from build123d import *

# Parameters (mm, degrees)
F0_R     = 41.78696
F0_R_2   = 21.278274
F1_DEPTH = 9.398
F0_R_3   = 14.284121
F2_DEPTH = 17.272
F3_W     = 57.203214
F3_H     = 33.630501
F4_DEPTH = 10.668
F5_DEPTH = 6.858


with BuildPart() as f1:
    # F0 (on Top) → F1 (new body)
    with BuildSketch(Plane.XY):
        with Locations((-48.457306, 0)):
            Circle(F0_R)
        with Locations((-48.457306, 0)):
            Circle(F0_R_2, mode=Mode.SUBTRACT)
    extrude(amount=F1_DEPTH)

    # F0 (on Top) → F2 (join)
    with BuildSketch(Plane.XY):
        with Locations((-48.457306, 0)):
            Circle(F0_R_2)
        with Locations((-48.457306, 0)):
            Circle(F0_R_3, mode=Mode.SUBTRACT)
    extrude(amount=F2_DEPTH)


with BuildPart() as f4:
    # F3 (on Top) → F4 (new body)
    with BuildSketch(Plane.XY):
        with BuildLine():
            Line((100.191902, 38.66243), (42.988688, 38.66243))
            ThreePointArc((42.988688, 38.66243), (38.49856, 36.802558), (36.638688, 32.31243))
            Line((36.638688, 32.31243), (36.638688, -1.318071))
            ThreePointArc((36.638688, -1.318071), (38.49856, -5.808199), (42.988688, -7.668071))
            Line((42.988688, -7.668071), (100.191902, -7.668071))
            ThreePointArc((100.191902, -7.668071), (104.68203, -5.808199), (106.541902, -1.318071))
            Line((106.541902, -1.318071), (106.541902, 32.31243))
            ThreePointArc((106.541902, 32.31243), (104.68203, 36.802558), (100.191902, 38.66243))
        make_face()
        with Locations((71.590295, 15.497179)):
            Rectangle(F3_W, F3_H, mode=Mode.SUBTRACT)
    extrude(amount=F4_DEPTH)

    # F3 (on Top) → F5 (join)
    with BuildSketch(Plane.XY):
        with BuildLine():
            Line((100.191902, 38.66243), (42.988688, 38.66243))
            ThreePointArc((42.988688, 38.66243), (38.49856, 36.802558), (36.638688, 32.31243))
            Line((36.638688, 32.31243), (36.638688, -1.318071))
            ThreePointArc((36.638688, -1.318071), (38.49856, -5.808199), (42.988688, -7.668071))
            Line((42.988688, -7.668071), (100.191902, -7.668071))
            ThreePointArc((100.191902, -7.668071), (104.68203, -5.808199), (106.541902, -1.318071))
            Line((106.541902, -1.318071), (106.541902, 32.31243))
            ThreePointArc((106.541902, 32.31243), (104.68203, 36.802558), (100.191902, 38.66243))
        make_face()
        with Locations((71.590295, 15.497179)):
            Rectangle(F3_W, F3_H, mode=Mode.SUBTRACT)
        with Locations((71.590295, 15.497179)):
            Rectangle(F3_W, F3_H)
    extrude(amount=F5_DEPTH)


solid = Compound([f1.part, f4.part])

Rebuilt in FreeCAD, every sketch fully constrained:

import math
import FreeCAD as App
import Part
import Sketcher
from FreeCAD import Vector
Q = App.Units.Quantity

doc = App.newDocument("Part")
body = doc.addObject("PartDesign::Body", "Body")

# Sketch on XY plane
sketch1 = doc.addObject("Sketcher::SketchObject", "Sketch")
body.addObject(sketch1)
sketch1.AttachmentSupport = (doc.XY_Plane, [""])
sketch1.MapMode = "FlatFace"
sketch1.addGeometry([
    Part.Circle(Vector(-48, 0, 0), Vector(0, 0, 1), 42),
    Part.Circle(Vector(-48, 0, 0), Vector(0, 0, 1), 21),
], False)
sketch1.addConstraint([
    Sketcher.Constraint("Coincident", 1, 3, 0, 3),
    Sketcher.Constraint("PointOnObject", 0, 3, -1),
    Sketcher.Constraint("Diameter", 0, Q("83.57392 mm")),
    Sketcher.Constraint("Diameter", 1, Q("42.556548 mm")),
    Sketcher.Constraint("DistanceX", 0, 3, -1, 1, Q("48.457306 mm")),
])
pad1 = doc.addObject("PartDesign::Pad", "Pad")
body.addObject(pad1)
pad1.Profile = sketch1
pad1.Length = Q("0.37 in")

# Sketch on XY plane
sketch2 = doc.addObject("Sketcher::SketchObject", "Sketch001")
body.addObject(sketch2)
sketch2.AttachmentSupport = (doc.XY_Plane, [""])
sketch2.MapMode = "FlatFace"
sketch2.addGeometry([
    Part.Circle(Vector(-48, 0, 0), Vector(0, 0, 1), 21),
    Part.Circle(Vector(-48, 0, 0), Vector(0, 0, 1), 14),
], False)
sketch2.addConstraint([
    Sketcher.Constraint("Coincident", 1, 3, 0, 3),
    Sketcher.Constraint("PointOnObject", 0, 3, -1),
    Sketcher.Constraint("Diameter", 0, Q("42.556548 mm")),
    Sketcher.Constraint("Diameter", 1, Q("28.568242 mm")),
    Sketcher.Constraint("DistanceX", 0, 3, -1, 1, Q("48.457306 mm")),
])
pad2 = doc.addObject("PartDesign::Pad", "Pad001")
body.addObject(pad2)
pad2.Profile = sketch2
pad2.Length = Q("0.68 in")
body2 = doc.addObject("PartDesign::Body", "Body001")

# Sketch on XY plane
sketch3 = doc.addObject("Sketcher::SketchObject", "Sketch002")
body2.addObject(sketch3)
sketch3.AttachmentSupport = (doc.getObject("XY_Plane001"), [""])
sketch3.MapMode = "FlatFace"
sketch3.addGeometry([
    Part.LineSegment(Vector(100, 39, 0), Vector(43, 39, 0)),  # 0
    Part.ArcOfCircle(Part.Circle(Vector(43, 32, 0), Vector(0, 0, 1), 6), math.radians(90), math.radians(180)),  # 1
    Part.LineSegment(Vector(37, 32, 0), Vector(37, -1, 0)),  # 2
    Part.ArcOfCircle(Part.Circle(Vector(43, -1, 0), Vector(0, 0, 1), 6), math.radians(-180), math.radians(-90)),  # 3
    Part.LineSegment(Vector(43, -8, 0), Vector(100, -8, 0)),  # 4
    Part.ArcOfCircle(Part.Circle(Vector(100, -1, 0), Vector(0, 0, 1), 6), math.radians(-90), math.radians(0)),  # 5
    Part.LineSegment(Vector(107, -1, 0), Vector(107, 32, 0)),  # 6
    Part.ArcOfCircle(Part.Circle(Vector(100, 32, 0), Vector(0, 0, 1), 6), math.radians(0), math.radians(90)),  # 7
    Part.LineSegment(Vector(100, -1, 0), Vector(43, -1, 0)),  # 8
    Part.LineSegment(Vector(43, -1, 0), Vector(43, 32, 0)),  # 9
    Part.LineSegment(Vector(43, 32, 0), Vector(100, 32, 0)),  # 10
    Part.LineSegment(Vector(100, 32, 0), Vector(100, -1, 0)),  # 11
], False)
sketch3.addConstraint([
    Sketcher.Constraint("Tangent", 0, 2, 1, 1),
    Sketcher.Constraint("Tangent", 1, 2, 2, 1),
    Sketcher.Constraint("Tangent", 2, 2, 3, 1),
    Sketcher.Constraint("Tangent", 3, 2, 4, 1),
    Sketcher.Constraint("Tangent", 4, 2, 5, 1),
    Sketcher.Constraint("Tangent", 5, 2, 6, 1),
    Sketcher.Constraint("Tangent", 6, 2, 7, 1),
    Sketcher.Constraint("Tangent", 7, 2, 0, 1),
    Sketcher.Constraint("Coincident", 8, 2, 9, 1),
    Sketcher.Constraint("Coincident", 9, 2, 10, 1),
    Sketcher.Constraint("Coincident", 10, 2, 11, 1),
    Sketcher.Constraint("Coincident", 11, 2, 8, 1),
    Sketcher.Constraint("Horizontal", 0),
    Sketcher.Constraint("Vertical", 2),
    Sketcher.Constraint("Horizontal", 4),
    Sketcher.Constraint("Vertical", 6),
    Sketcher.Constraint("Horizontal", 8),
    Sketcher.Constraint("Vertical", 9),
    Sketcher.Constraint("Horizontal", 10),
    Sketcher.Constraint("Vertical", 11),
    Sketcher.Constraint("Coincident", 8, 2, 3, 3),
    Sketcher.Constraint("Coincident", 9, 2, 1, 3),
    Sketcher.Constraint("Coincident", 10, 2, 7, 3),
    Sketcher.Constraint("Equal", 3, 5),
    Sketcher.Constraint("Radius", 1, Q("0.25 in")),
    Sketcher.Constraint("DistanceY", 2, 2, 2, 1, Q("33.630501 mm")),
    Sketcher.Constraint("DistanceX", -1, 1, 5, 3, Q("100.191902 mm")),
    Sketcher.Constraint("DistanceX", 0, 2, 0, 1, Q("57.203214 mm")),
    Sketcher.Constraint("DistanceY", -1, 1, 1, 3, Q("32.31243 mm")),
])
pad3 = doc.addObject("PartDesign::Pad", "Pad002")
body2.addObject(pad3)
pad3.Profile = sketch3
pad3.Length = Q("0.42 in")

# Sketch on XY plane
sketch4 = doc.addObject("Sketcher::SketchObject", "Sketch003")
body2.addObject(sketch4)
sketch4.AttachmentSupport = (doc.getObject("XY_Plane001"), [""])
sketch4.MapMode = "FlatFace"
sketch4.addGeometry([
    Part.LineSegment(Vector(100, 39, 0), Vector(43, 39, 0)),  # 0
    Part.ArcOfCircle(Part.Circle(Vector(43, 32, 0), Vector(0, 0, 1), 6), math.radians(90), math.radians(180)),  # 1
    Part.LineSegment(Vector(37, 32, 0), Vector(37, -1, 0)),  # 2
    Part.ArcOfCircle(Part.Circle(Vector(43, -1, 0), Vector(0, 0, 1), 6), math.radians(-180), math.radians(-90)),  # 3
    Part.LineSegment(Vector(43, -8, 0), Vector(100, -8, 0)),  # 4
    Part.ArcOfCircle(Part.Circle(Vector(100, -1, 0), Vector(0, 0, 1), 6), math.radians(-90), math.radians(0)),  # 5
    Part.LineSegment(Vector(107, -1, 0), Vector(107, 32, 0)),  # 6
    Part.ArcOfCircle(Part.Circle(Vector(100, 32, 0), Vector(0, 0, 1), 6), math.radians(0), math.radians(90)),  # 7
], False)
sketch4.addConstraint([
    Sketcher.Constraint("Tangent", 0, 2, 1, 1),
    Sketcher.Constraint("Tangent", 1, 2, 2, 1),
    Sketcher.Constraint("Tangent", 2, 2, 3, 1),
    Sketcher.Constraint("Tangent", 3, 2, 4, 1),
    Sketcher.Constraint("Tangent", 4, 2, 5, 1),
    Sketcher.Constraint("Tangent", 5, 2, 6, 1),
    Sketcher.Constraint("Tangent", 6, 2, 7, 1),
    Sketcher.Constraint("Tangent", 7, 2, 0, 1),
    Sketcher.Constraint("Horizontal", 0),
    Sketcher.Constraint("Vertical", 2),
    Sketcher.Constraint("Horizontal", 4),
    Sketcher.Constraint("Vertical", 6),
    Sketcher.Constraint("Equal", 1, 3),
    Sketcher.Constraint("Equal", 3, 5),
    Sketcher.Constraint("Equal", 5, 7),
    Sketcher.Constraint("Radius", 1, Q("0.25 in")),
    Sketcher.Constraint("DistanceY", 2, 2, 2, 1, Q("33.630501 mm")),
    Sketcher.Constraint("DistanceX", -1, 1, 5, 3, Q("100.191902 mm")),
    Sketcher.Constraint("DistanceX", 0, 2, 0, 1, Q("57.203214 mm")),
    Sketcher.Constraint("DistanceY", -1, 1, 1, 3, Q("32.31243 mm")),
])
pad4 = doc.addObject("PartDesign::Pad", "Pad003")
body2.addObject(pad4)
pad4.Profile = sketch4
pad4.Length = Q("0.27 in")

doc.recompute()
